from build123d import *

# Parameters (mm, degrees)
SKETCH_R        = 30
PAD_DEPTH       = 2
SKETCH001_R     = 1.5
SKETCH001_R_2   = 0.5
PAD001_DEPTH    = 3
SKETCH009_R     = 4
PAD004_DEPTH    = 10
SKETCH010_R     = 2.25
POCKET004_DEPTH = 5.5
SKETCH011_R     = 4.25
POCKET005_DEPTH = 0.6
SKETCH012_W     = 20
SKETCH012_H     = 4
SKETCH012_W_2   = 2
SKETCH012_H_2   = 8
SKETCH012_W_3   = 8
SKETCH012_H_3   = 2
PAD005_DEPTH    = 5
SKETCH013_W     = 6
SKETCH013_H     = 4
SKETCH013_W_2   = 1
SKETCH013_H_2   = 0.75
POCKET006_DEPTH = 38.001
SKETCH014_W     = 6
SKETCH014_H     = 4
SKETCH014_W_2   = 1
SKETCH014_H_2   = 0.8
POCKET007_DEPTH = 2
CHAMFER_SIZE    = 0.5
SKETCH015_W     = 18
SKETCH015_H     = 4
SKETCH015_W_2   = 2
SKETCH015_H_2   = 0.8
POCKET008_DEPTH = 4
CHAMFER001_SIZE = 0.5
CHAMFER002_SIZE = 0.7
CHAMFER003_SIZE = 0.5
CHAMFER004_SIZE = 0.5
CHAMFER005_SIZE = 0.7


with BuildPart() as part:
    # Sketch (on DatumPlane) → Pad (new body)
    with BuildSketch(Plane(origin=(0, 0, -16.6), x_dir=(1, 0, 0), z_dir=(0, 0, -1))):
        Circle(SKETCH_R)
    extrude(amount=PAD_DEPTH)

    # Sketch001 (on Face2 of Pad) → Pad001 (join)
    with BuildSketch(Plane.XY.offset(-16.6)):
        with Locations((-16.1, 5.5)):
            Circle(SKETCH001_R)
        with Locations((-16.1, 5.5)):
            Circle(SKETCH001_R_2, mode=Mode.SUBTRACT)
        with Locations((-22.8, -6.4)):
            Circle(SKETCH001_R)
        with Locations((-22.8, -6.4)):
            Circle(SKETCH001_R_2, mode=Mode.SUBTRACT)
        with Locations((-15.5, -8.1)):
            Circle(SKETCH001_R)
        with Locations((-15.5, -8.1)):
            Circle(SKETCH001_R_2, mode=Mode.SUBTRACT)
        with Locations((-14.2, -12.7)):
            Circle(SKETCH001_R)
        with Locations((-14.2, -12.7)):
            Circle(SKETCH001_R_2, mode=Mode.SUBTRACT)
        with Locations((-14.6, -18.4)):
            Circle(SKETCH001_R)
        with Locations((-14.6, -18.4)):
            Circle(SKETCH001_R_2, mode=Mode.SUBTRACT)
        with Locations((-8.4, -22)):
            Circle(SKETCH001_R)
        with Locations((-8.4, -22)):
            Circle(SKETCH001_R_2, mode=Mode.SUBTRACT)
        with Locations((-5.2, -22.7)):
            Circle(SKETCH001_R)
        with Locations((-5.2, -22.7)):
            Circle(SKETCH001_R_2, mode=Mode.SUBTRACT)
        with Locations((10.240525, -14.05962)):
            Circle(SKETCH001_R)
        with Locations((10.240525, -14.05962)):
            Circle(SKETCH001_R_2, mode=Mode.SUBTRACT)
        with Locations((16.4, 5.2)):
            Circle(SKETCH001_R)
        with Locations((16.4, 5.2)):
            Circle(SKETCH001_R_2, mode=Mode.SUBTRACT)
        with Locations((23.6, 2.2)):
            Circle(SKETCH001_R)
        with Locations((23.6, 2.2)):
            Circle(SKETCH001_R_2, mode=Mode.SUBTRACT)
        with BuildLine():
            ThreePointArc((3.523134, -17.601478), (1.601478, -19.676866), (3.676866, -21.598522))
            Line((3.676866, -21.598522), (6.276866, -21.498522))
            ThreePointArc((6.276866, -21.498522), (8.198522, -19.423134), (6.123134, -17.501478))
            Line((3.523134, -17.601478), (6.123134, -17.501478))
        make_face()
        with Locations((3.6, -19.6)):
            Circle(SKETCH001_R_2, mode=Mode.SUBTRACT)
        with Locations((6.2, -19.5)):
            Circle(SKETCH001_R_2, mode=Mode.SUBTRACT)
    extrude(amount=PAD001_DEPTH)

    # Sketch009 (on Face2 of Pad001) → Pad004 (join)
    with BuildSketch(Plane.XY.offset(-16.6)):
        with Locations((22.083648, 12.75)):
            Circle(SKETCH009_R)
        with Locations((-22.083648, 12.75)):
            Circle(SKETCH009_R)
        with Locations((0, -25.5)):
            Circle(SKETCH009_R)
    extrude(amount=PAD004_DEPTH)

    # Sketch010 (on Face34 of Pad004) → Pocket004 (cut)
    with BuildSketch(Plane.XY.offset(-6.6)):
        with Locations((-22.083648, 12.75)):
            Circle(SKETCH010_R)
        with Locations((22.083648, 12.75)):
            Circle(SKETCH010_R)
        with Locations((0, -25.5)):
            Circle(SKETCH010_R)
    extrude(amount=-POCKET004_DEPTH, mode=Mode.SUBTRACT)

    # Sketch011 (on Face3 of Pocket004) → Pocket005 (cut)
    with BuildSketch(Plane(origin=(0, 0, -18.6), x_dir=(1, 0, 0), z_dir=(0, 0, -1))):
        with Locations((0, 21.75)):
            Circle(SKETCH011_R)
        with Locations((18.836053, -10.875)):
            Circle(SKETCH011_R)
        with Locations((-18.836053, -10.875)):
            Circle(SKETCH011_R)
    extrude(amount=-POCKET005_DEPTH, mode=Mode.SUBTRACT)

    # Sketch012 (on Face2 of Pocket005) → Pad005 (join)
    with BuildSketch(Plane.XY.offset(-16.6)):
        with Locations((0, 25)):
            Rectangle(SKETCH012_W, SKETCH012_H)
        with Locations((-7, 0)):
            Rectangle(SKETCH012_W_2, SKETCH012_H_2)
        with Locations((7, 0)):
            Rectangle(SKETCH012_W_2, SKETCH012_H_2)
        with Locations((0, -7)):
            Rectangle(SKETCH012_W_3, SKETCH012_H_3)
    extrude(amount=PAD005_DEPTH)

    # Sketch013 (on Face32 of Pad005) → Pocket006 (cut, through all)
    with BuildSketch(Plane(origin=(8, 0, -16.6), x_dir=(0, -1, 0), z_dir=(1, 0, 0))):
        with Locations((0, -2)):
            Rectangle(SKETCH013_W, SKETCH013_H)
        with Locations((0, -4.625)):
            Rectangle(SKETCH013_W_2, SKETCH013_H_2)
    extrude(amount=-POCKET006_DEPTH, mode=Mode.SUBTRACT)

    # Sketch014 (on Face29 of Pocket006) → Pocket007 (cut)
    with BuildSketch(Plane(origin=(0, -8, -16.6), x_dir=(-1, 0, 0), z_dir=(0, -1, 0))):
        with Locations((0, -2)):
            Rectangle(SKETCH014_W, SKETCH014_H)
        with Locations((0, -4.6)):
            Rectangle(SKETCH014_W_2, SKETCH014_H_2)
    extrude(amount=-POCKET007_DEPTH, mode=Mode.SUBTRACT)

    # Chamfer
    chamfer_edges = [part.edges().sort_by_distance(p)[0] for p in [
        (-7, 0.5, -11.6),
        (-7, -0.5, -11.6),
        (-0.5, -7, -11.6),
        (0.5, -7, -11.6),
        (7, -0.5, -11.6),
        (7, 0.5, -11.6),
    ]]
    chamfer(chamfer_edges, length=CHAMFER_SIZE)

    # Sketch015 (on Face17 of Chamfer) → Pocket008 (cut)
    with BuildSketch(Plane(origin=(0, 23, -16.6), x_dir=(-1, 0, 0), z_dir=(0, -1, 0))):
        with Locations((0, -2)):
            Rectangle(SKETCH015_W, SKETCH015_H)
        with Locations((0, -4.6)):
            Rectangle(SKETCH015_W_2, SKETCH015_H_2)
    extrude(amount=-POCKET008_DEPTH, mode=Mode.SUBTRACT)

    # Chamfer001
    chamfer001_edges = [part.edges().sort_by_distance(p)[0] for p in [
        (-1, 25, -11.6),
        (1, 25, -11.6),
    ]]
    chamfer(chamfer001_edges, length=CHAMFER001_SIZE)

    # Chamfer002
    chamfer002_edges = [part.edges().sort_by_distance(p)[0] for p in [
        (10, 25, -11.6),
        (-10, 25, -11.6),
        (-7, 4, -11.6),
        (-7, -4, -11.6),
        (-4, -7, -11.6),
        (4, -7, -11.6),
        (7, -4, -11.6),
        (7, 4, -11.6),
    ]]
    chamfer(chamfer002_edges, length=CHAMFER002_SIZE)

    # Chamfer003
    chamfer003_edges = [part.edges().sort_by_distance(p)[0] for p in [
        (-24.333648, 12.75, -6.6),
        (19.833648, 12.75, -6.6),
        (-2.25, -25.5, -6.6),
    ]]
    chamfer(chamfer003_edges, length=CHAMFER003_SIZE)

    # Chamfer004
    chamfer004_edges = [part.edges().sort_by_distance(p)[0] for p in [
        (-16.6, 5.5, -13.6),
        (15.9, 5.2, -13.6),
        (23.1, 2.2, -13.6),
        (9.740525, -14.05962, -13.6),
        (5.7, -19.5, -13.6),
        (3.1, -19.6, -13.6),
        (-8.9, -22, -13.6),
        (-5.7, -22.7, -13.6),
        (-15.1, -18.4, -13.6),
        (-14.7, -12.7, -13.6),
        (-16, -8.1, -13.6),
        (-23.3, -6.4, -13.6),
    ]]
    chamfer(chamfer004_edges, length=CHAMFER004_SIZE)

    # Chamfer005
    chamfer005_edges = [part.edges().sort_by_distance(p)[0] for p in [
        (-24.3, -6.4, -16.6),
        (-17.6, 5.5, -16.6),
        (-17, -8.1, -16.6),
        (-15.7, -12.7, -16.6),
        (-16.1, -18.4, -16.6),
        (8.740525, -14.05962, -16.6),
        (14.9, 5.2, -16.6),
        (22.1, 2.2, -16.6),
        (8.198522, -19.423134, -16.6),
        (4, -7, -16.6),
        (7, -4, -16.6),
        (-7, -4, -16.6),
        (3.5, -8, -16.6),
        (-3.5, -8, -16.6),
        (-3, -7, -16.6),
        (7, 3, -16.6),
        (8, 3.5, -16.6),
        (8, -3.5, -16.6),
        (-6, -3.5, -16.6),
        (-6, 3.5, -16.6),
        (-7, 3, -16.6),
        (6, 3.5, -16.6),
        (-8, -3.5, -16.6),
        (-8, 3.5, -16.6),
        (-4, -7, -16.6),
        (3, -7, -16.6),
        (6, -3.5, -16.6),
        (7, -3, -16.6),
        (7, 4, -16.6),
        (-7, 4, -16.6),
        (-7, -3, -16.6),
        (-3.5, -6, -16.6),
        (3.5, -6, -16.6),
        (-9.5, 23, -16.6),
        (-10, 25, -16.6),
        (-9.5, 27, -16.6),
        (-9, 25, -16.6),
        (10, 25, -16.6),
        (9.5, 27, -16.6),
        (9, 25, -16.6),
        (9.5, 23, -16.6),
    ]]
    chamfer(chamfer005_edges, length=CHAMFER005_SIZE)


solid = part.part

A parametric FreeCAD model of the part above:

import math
import FreeCAD as App
import Part
import Sketcher


def edges_at(feature, points):
    """Names of the edges that pass closest to the given points."""
    edges = feature.Shape.Edges
    near = lambda p: min(range(len(edges)), key=lambda i: edges[i].distToShape(Part.Vertex(*p))[0])
    return sorted({f"Edge{near(p) + 1}" for p in points})


def add_polygon(sketch, points):
    """Adds a closed chain of lines whose ends are joined by coincident constraints."""
    first, n = sketch.GeometryCount, len(points)
    for a, b in zip(points, points[1:] + points[:1]):
        sketch.addGeometry(Part.LineSegment(App.Vector(*a, 0), App.Vector(*b, 0)), False)
    for i in range(n):
        sketch.addConstraint(Sketcher.Constraint("Coincident", first + i, 2, first + (i + 1) % n, 1))

doc = App.newDocument("Part")
body = doc.addObject("PartDesign::Body", "Body")

sketch1 = doc.addObject("Sketcher::SketchObject", "Sketch")
body.addObject(sketch1)
sketch1.AttachmentSupport = (doc.XY_Plane, [""])
sketch1.MapMode = "FlatFace"
sketch1.AttachmentOffset = App.Placement(App.Vector(0, 0, -16.6), App.Rotation())
sketch1.addGeometry(Part.Circle(App.Vector(0, 0, 0), App.Vector(0, 0, 1), 30), False)
sketch1.addConstraint([
    Sketcher.Constraint("Coincident", 0, 3, -1, 1),
    Sketcher.Constraint("Diameter", 0, 60.0),
])
pad1 = doc.addObject("PartDesign::Pad", "Pad")
body.addObject(pad1)
pad1.Profile = sketch1
pad1.Length = 2
pad1.Reversed = True

sketch2 = doc.addObject("Sketcher::SketchObject", "Sketch001")
body.addObject(sketch2)
sketch2.AttachmentSupport = (doc.XY_Plane, [""])
sketch2.MapMode = "FlatFace"
sketch2.AttachmentOffset = App.Placement(App.Vector(0, 0, -16.6), App.Rotation())
sketch2.addGeometry([
    Part.Circle(App.Vector(-16.1, 5.5, 0), App.Vector(0, 0, 1), 1.5),
    Part.Circle(App.Vector(-16.1, 5.5, 0), App.Vector(0, 0, 1), 0.5),
    Part.Circle(App.Vector(-22.8, -6.4, 0), App.Vector(0, 0, 1), 1.5),
    Part.Circle(App.Vector(-22.8, -6.4, 0), App.Vector(0, 0, 1), 0.5),
    Part.Circle(App.Vector(-15.5, -8.1, 0), App.Vector(0, 0, 1), 1.5),
    Part.Circle(App.Vector(-15.5, -8.1, 0), App.Vector(0, 0, 1), 0.5),
    Part.Circle(App.Vector(-14.2, -12.7, 0), App.Vector(0, 0, 1), 1.5),
    Part.Circle(App.Vector(-14.2, -12.7, 0), App.Vector(0, 0, 1), 0.5),
    Part.Circle(App.Vector(-14.6, -18.4, 0), App.Vector(0, 0, 1), 1.5),
    Part.Circle(App.Vector(-14.6, -18.4, 0), App.Vector(0, 0, 1), 0.5),
    Part.Circle(App.Vector(-8.4, -22, 0), App.Vector(0, 0, 1), 1.5),
    Part.Circle(App.Vector(-8.4, -22, 0), App.Vector(0, 0, 1), 0.5),
    Part.Circle(App.Vector(-5.2, -22.7, 0), App.Vector(0, 0, 1), 1.5),
    Part.Circle(App.Vector(-5.2, -22.7, 0), App.Vector(0, 0, 1), 0.5),
    Part.Circle(App.Vector(10.2, -14.1, 0), App.Vector(0, 0, 1), 1.5),
    Part.Circle(App.Vector(10.2, -14.1, 0), App.Vector(0, 0, 1), 0.5),
    Part.Circle(App.Vector(16.4, 5.2, 0), App.Vector(0, 0, 1), 1.5),
    Part.Circle(App.Vector(16.4, 5.2, 0), App.Vector(0, 0, 1), 0.5),
    Part.Circle(App.Vector(23.6, 2.2, 0), App.Vector(0, 0, 1), 1.5),
    Part.Circle(App.Vector(23.6, 2.2, 0), App.Vector(0, 0, 1), 0.5),
    Part.ArcOfCircle(Part.Circle(App.Vector(3.6, -19.6, 0), App.Vector(0, 0, 1), 2), math.radians(92), math.radians(272)),
    Part.LineSegment(App.Vector(3.7, -21.6, 0), App.Vector(6.3, -21.5, 0)),
    Part.ArcOfCircle(Part.Circle(App.Vector(6.2, -19.5, 0), App.Vector(0, 0, 1), 2), math.radians(-88), math.radians(92)),
    Part.LineSegment(App.Vector(6.1, -17.5, 0), App.Vector(3.5, -17.6, 0)),
    Part.Circle(App.Vector(3.6, -19.6, 0), App.Vector(0, 0, 1), 0.5),
    Part.Circle(App.Vector(6.2, -19.5, 0), App.Vector(0, 0, 1), 0.5),
], False)
sketch2.addConstraint([
    Sketcher.Constraint("Tangent", 20, 2, 21, 1),
    Sketcher.Constraint("Tangent", 21, 2, 22, 1),
    Sketcher.Constraint("Tangent", 22, 2, 23, 1),
    Sketcher.Constraint("Tangent", 23, 2, 20, 1),
    Sketcher.Constraint("Coincident", 1, 3, 0, 3),
    Sketcher.Constraint("Coincident", 3, 3, 2, 3),
    Sketcher.Constraint("Coincident", 5, 3, 4, 3),
    Sketcher.Constraint("Coincident", 7, 3, 6, 3),
    Sketcher.Constraint("Coincident", 9, 3, 8, 3),
    Sketcher.Constraint("Coincident", 11, 3, 10, 3),
    Sketcher.Constraint("Coincident", 13, 3, 12, 3),
    Sketcher.Constraint("Coincident", 15, 3, 14, 3),
    Sketcher.Constraint("Coincident", 17, 3, 16, 3),
    Sketcher.Constraint("Coincident", 19, 3, 18, 3),
    Sketcher.Constraint("Coincident", 24, 3, 20, 3),
    Sketcher.Constraint("Coincident", 25, 3, 22, 3),
    Sketcher.Constraint("Equal", 0, 2),
    Sketcher.Constraint("Equal", 1, 3),
    Sketcher.Constraint("Equal", 2, 4),
    Sketcher.Constraint("Equal", 3, 5),
    Sketcher.Constraint("Equal", 4, 6),
    Sketcher.Constraint("Equal", 5, 7),
    Sketcher.Constraint("Equal", 6, 8),
    Sketcher.Constraint("Equal", 7, 9),
    Sketcher.Constraint("Equal", 8, 10),
    Sketcher.Constraint("Equal", 9, 11),
    Sketcher.Constraint("Equal", 10, 12),
    Sketcher.Constraint("Equal", 11, 13),
    Sketcher.Constraint("Equal", 12, 14),
    Sketcher.Constraint("Equal", 13, 15),
    Sketcher.Constraint("Equal", 14, 16),
    Sketcher.Constraint("Equal", 15, 17),
    Sketcher.Constraint("Equal", 16, 18),
    Sketcher.Constraint("Equal", 17, 19),
    Sketcher.Constraint("Equal", 20, 22),
    Sketcher.Constraint("Equal", 19, 24),
    Sketcher.Constraint("Equal", 24, 25),
    Sketcher.Constraint("Diameter", 0, 3.0),
    Sketcher.Constraint("Diameter", 1, 1.0),
    Sketcher.Constraint("Radius", 20, 2.0),
    Sketcher.Constraint("DistanceY", 10, 3, -1, 1, 22.0),
    Sketcher.Constraint("DistanceY", 8, 3, 2, 3, 12.0),
    Sketcher.Constraint("DistanceX", 6, 3, 12, 3, 9.0),
    Sketcher.Constraint("DistanceY", 12, 3, 6, 3, 10.0),
    Sketcher.Constraint("DistanceY", 18, 3, 16, 3, 3.0),
    Sketcher.Constraint("DistanceX", 10, 3, 20, 3, 12.0),
    Sketcher.Constraint("DistanceX", 0, 3, -1, 1, 16.1),
    Sketcher.Constraint("DistanceY", -1, 1, 0, 3, 5.5),
    Sketcher.Constraint("DistanceX", 2, 3, -1, 1, 22.8),
    Sketcher.Constraint("DistanceY", 2, 3, -1, 1, 6.4),
    Sketcher.Constraint("DistanceX", 4, 3, -1, 1, 15.5),
    Sketcher.Constraint("DistanceY", 4, 3, -1, 1, 8.1),
    Sketcher.Constraint("DistanceX", 6, 3, -1, 1, 14.2),
    Sketcher.Constraint("DistanceY", 6, 3, -1, 1, 12.7),
    Sketcher.Constraint("DistanceX", 8, 3, -1, 1, 14.6),
    Sketcher.Constraint("DistanceX", 10, 3, -1, 1, 8.4),
    Sketcher.Constraint("DistanceX", -1, 1, 16, 3, 16.4),
    Sketcher.Constraint("DistanceY", -1, 1, 16, 3, 5.2),
    Sketcher.Constraint("DistanceX", -1, 1, 18, 3, 23.6),
    Sketcher.Constraint("DistanceY", 20, 3, -1, 1, 19.6),
    Sketcher.Constraint("DistanceX", -1, 1, 22, 3, 6.2),
    Sketcher.Constraint("DistanceY", 22, 3, -1, 1, 19.5),
    Sketcher.Constraint("DistanceY", 14, 3, -1, 1, 14.05962),
    Sketcher.Constraint("DistanceX", -1, 1, 14, 3, 10.240525),
])
pad2 = doc.addObject("PartDesign::Pad", "Pad001")
body.addObject(pad2)
pad2.Profile = sketch2
pad2.Length = 3

sketch3 = doc.addObject("Sketcher::SketchObject", "Sketch002")
body.addObject(sketch3)
sketch3.AttachmentSupport = (doc.XY_Plane, [""])
sketch3.MapMode = "FlatFace"
sketch3.AttachmentOffset = App.Placement(App.Vector(0, 0, -16.6), App.Rotation())
sketch3.addGeometry([
    Part.Circle(App.Vector(22.1, 12.8, 0), App.Vector(0, 0, 1), 4),
    Part.Circle(App.Vector(-22.1, 12.8, 0), App.Vector(0, 0, 1), 4),
    Part.Circle(App.Vector(0, -25.5, 0), App.Vector(0, 0, 1), 4),
], False)
sketch3.addConstraint([
    Sketcher.Constraint("Equal", 0, 1),
    Sketcher.Constraint("Equal", 1, 2),
    Sketcher.Constraint("Symmetric", 0, 3, 1, 3, -2),
    Sketcher.Constraint("PointOnObject", 2, 3, -2),
    Sketcher.Constraint("Diameter", 0, 8.0),
    Sketcher.Constraint("DistanceY", 2, 3, -1, 1, 25.5),
    Sketcher.Constraint("DistanceY", -1, 1, 0, 3, 12.75),
    Sketcher.Constraint("DistanceX", -1, 1, 0, 3, 22.083648),
])
pad3 = doc.addObject("PartDesign::Pad", "Pad002")
body.addObject(pad3)
pad3.Profile = sketch3
pad3.Length = 10

sketch4 = doc.addObject("Sketcher::SketchObject", "Sketch003")
body.addObject(sketch4)
sketch4.AttachmentSupport = (doc.XY_Plane, [""])
sketch4.MapMode = "FlatFace"
sketch4.AttachmentOffset = App.Placement(App.Vector(0, 0, -6.6), App.Rotation())
sketch4.addGeometry([
    Part.Circle(App.Vector(-22.1, 12.8, 0), App.Vector(0, 0, 1), 2.2),
    Part.Circle(App.Vector(22.1, 12.8, 0), App.Vector(0, 0, 1), 2.2),
    Part.Circle(App.Vector(0, -25.5, 0), App.Vector(0, 0, 1), 2.2),
], False)
sketch4.addConstraint([
    Sketcher.Constraint("Equal", 0, 1),
    Sketcher.Constraint("Equal", 1, 2),
    Sketcher.Constraint("Symmetric", 0, 3, 1, 3, -2),
    Sketcher.Constraint("PointOnObject", 2, 3, -2),
    Sketcher.Constraint("Diameter", 0, 4.5),
    Sketcher.Constraint("DistanceY", 2, 3, -1, 1, 25.5),
    Sketcher.Constraint("DistanceY", -1, 1, 0, 3, 12.75),
    Sketcher.Constraint("DistanceX", 0, 3, -1, 1, 22.083648),
])
pocket1 = doc.addObject("PartDesign::Pocket", "Pocket")
body.addObject(pocket1)
pocket1.Profile = sketch4
pocket1.Length = 5.5

sketch5 = doc.addObject("Sketcher::SketchObject", "Sketch004")
body.addObject(sketch5)
sketch5.AttachmentSupport = (doc.XY_Plane, [""])
sketch5.MapMode = "FlatFace"
sketch5.AttachmentOffset = App.Placement(App.Vector(0, 0, -18.6), App.Rotation())
sketch5.addGeometry([
    Part.Circle(App.Vector(0, -21.8, 0), App.Vector(0, 0, 1), 4.2),
    Part.Circle(App.Vector(18.8, 10.9, 0), App.Vector(0, 0, 1), 4.2),
    Part.Circle(App.Vector(-18.8, 10.9, 0), App.Vector(0, 0, 1), 4.2),
], False)
sketch5.addConstraint([
    Sketcher.Constraint("Equal", 0, 1),
    Sketcher.Constraint("Equal", 1, 2),
    Sketcher.Constraint("Symmetric", 1, 3, 2, 3, -2),
    Sketcher.Constraint("PointOnObject", 0, 3, -2),
    Sketcher.Constraint("Diameter", 0, 8.5),
    Sketcher.Constraint("DistanceY", 0, 3, -1, 1, 21.75),
    Sketcher.Constraint("DistanceY", -1, 1, 1, 3, 10.875),
    Sketcher.Constraint("DistanceX", -1, 1, 1, 3, 18.836053),
])
pocket2 = doc.addObject("PartDesign::Pocket", "Pocket001")
body.addObject(pocket2)
pocket2.Profile = sketch5
pocket2.Length = 0.6
pocket2.Reversed = True

sketch6 = doc.addObject("Sketcher::SketchObject", "Sketch005")
body.addObject(sketch6)
sketch6.AttachmentSupport = (doc.XY_Plane, [""])
sketch6.MapMode = "FlatFace"
sketch6.AttachmentOffset = App.Placement(App.Vector(0, 0, -16.6), App.Rotation())
add_polygon(sketch6, [(-10, 27), (-10, 23), (10, 23), (10, 27)])
add_polygon(sketch6, [(-8, 4), (-8, -4), (-6, -4), (-6, 4)])
add_polygon(sketch6, [(6, 4), (6, -4), (8, -4), (8, 4)])
add_polygon(sketch6, [(-4, -6), (-4, -8), (4, -8), (4, -6)])
sketch6.addConstraint([
    Sketcher.Constraint("Vertical", 0),
    Sketcher.Constraint("Horizontal", 1),
    Sketcher.Constraint("Vertical", 2),
    Sketcher.Constraint("Horizontal", 3),
    Sketcher.Constraint("Vertical", 4),
    Sketcher.Constraint("Horizontal", 5),
    Sketcher.Constraint("Vertical", 6),
    Sketcher.Constraint("Horizontal", 7),
    Sketcher.Constraint("Vertical", 8),
    Sketcher.Constraint("Horizontal", 9),
    Sketcher.Constraint("Vertical", 10),
    Sketcher.Constraint("Horizontal", 11),
    Sketcher.Constraint("Vertical", 12),
    Sketcher.Constraint("Horizontal", 13),
    Sketcher.Constraint("Vertical", 14),
    Sketcher.Constraint("Horizontal", 15),
    Sketcher.Constraint("Symmetric", 6, 2, 8, 2, -1, 1),
    Sketcher.Constraint("Symmetric", 4, 2, 10, 2, -1, 1),
    Sketcher.Constraint("Horizontal", 5, 2, 8, 2),
    Sketcher.Constraint("Equal", 15, 4),
    Sketcher.Constraint("Equal", 11, 12),
    Sketcher.Constraint("DistanceX", 1, 1, 1, 2, 20.0),
    Sketcher.Constraint("DistanceX", 5, 1, 5, 2, 2.0),
    Sketcher.Constraint("DistanceX", 13, 1, 13, 2, 8.0),
    Sketcher.Constraint("DistanceY", 0, 2, 0, 1, 4.0),
    Sketcher.Constraint("DistanceX", 0, 2, -1, 1, 10.0),
    Sketcher.Constraint("DistanceY", -1, 1, 0, 2, 23.0),
    Sketcher.Constraint("DistanceX", 4, 2, -1, 1, 8.0),
    Sketcher.Constraint("DistanceX", 12, 2, -1, 1, 4.0),
    Sketcher.Constraint("DistanceY", 12, 2, -1, 1, 8.0),
])
pad4 = doc.addObject("PartDesign::Pad", "Pad003")
body.addObject(pad4)
pad4.Profile = sketch6
pad4.Length = 5

sketch7 = doc.addObject("Sketcher::SketchObject", "Sketch006")
body.addObject(sketch7)
sketch7.AttachmentSupport = (doc.YZ_Plane, [""])
sketch7.MapMode = "FlatFace"
sketch7.AttachmentOffset = App.Placement(App.Vector(0, 0, 8), App.Rotation())
add_polygon(sketch7, [(3, -16.6), (3, -12.6), (-3, -12.6), (-3, -16.6)])
add_polygon(sketch7, [(0.5, -12.3), (0.5, -11.6), (-0.5, -11.6), (-0.5, -12.3)])
sketch7.addConstraint([
    Sketcher.Constraint("Vertical", 0),
    Sketcher.Constraint("Horizontal", 1),
    Sketcher.Constraint("Vertical", 2),
    Sketcher.Constraint("Horizontal", 3),
    Sketcher.Constraint("Vertical", 4),
    Sketcher.Constraint("Horizontal", 5),
    Sketcher.Constraint("Vertical", 6),
    Sketcher.Constraint("Horizontal", 7),
    Sketcher.Constraint("DistanceX", 1, 2, 1, 1, 6.0),
    Sketcher.Constraint("DistanceX", 5, 2, 5, 1, 1.0),
    Sketcher.Constraint("DistanceY", 0, 1, 0, 2, 4.0),
    Sketcher.Constraint("DistanceX", -1, 1, 0, 2, 3.0),
    Sketcher.Constraint("DistanceY", 0, 2, 4, 2, 1.0),
    Sketcher.Constraint("DistanceY", 4, 1, 4, 2, 0.75),
    Sketcher.Constraint("DistanceY", 0, 2, -1, 1, 12.6),
    Sketcher.Constraint("DistanceX", -1, 1, 4, 2, 0.5),
])
pocket3 = doc.addObject("PartDesign::Pocket", "Pocket002")
body.addObject(pocket3)
pocket3.Profile = sketch7
pocket3.Type = "ThroughAll"

sketch8 = doc.addObject("Sketcher::SketchObject", "Sketch007")
body.addObject(sketch8)
sketch8.AttachmentSupport = (doc.XZ_Plane, [""])
sketch8.MapMode = "FlatFace"
sketch8.AttachmentOffset = App.Placement(App.Vector(0, 0, 8), App.Rotation())
add_polygon(sketch8, [(3, -16.6), (3, -12.6), (-3, -12.6), (-3, -16.6)])
add_polygon(sketch8, [(0.5, -12.4), (0.5, -11.6), (-0.5, -11.6), (-0.5, -12.4)])
sketch8.addConstraint([
    Sketcher.Constraint("Vertical", 0),
    Sketcher.Constraint("Horizontal", 1),
    Sketcher.Constraint("Vertical", 2),
    Sketcher.Constraint("Horizontal", 3),
    Sketcher.Constraint("Vertical", 4),
    Sketcher.Constraint("Horizontal", 5),
    Sketcher.Constraint("Vertical", 6),
    Sketcher.Constraint("Horizontal", 7),
    Sketcher.Constraint("DistanceX", 1, 2, 1, 1, 6.0),
    Sketcher.Constraint("DistanceX", 5, 2, 5, 1, 1.0),
    Sketcher.Constraint("DistanceY", 0, 1, 0, 2, 4.0),
    Sketcher.Constraint("DistanceY", 4, 1, 4, 2, 0.8),
    Sketcher.Constraint("DistanceX", -1, 1, 0, 2, 3.0),
    Sketcher.Constraint("DistanceY", 0, 2, 4, 2, 1.0),
    Sketcher.Constraint("DistanceY", 0, 2, -1, 1, 12.6),
    Sketcher.Constraint("DistanceX", -1, 1, 4, 2, 0.5),
])
pocket4 = doc.addObject("PartDesign::Pocket", "Pocket003")
body.addObject(pocket4)
pocket4.Profile = sketch8
pocket4.Length = 2
doc.recompute()

chamfer = doc.addObject("PartDesign::Chamfer", "Chamfer")
body.addObject(chamfer)
chamfer.Base = (pocket4, edges_at(pocket4, [
    (-7, 0.5, -11.6),
    (-7, -0.5, -11.6),
    (-0.5, -7, -11.6),
    (0.5, -7, -11.6),
    (7, -0.5, -11.6),
    (7, 0.5, -11.6),
]))
chamfer.Size = 0.5

sketch9 = doc.addObject("Sketcher::SketchObject", "Sketch008")
body.addObject(sketch9)
sketch9.AttachmentSupport = (doc.XZ_Plane, [""])
sketch9.MapMode = "FlatFace"
sketch9.AttachmentOffset = App.Placement(App.Vector(0, 0, -23), App.Rotation())
add_polygon(sketch9, [(9, -16.6), (9, -12.6), (-9, -12.6), (-9, -16.6)])
add_polygon(sketch9, [(1, -12.4), (1, -11.6), (-1, -11.6), (-1, -12.4)])
sketch9.addConstraint([
    Sketcher.Constraint("Vertical", 0),
    Sketcher.Constraint("Horizontal", 1),
    Sketcher.Constraint("Vertical", 2),
    Sketcher.Constraint("Horizontal", 3),
    Sketcher.Constraint("Vertical", 4),
    Sketcher.Constraint("Horizontal", 5),
    Sketcher.Constraint("Vertical", 6),
    Sketcher.Constraint("Horizontal", 7),
    Sketcher.Constraint("DistanceX", 1, 2, 1, 1, 18.0),
    Sketcher.Constraint("DistanceX", 5, 2, 5, 1, 2.0),
    Sketcher.Constraint("DistanceY", 0, 1, 0, 2, 4.0),
    Sketcher.Constraint("DistanceY", 4, 1, 4, 2, 0.8),
    Sketcher.Constraint("DistanceX", -1, 1, 0, 2, 9.0),
    Sketcher.Constraint("DistanceX", -1, 1, 4, 2, 1.0),
    Sketcher.Constraint("DistanceY", 0, 2, 4, 2, 1.0),
    Sketcher.Constraint("DistanceY", 0, 2, -1, 1, 12.6),
])
pocket5 = doc.addObject("PartDesign::Pocket", "Pocket004")
body.addObject(pocket5)
pocket5.Profile = sketch9
pocket5.Length = 4
doc.recompute()

chamfer2 = doc.addObject("PartDesign::Chamfer", "Chamfer001")
body.addObject(chamfer2)
chamfer2.Base = (pocket5, edges_at(pocket5, [(-1, 25, -11.6), (1, 25, -11.6)]))
chamfer2.Size = 0.5
doc.recompute()

chamfer3 = doc.addObject("PartDesign::Chamfer", "Chamfer002")
body.addObject(chamfer3)
chamfer3.Base = (chamfer2, edges_at(chamfer2, [
    (10, 25, -11.6),
    (-10, 25, -11.6),
    (-7, 4, -11.6),
    (-7, -4, -11.6),
    (-4, -7, -11.6),
    (4, -7, -11.6),
    (7, -4, -11.6),
    (7, 4, -11.6),
]))
chamfer3.Size = 0.7
doc.recompute()

chamfer4 = doc.addObject("PartDesign::Chamfer", "Chamfer003")
body.addObject(chamfer4)
chamfer4.Base = (chamfer3, edges_at(chamfer3, [(-24.334, 12.75, -6.6), (19.834, 12.75, -6.6), (-2.25, -25.5, -6.6)]))
chamfer4.Size = 0.5
doc.recompute()

chamfer5 = doc.addObject("PartDesign::Chamfer", "Chamfer004")
body.addObject(chamfer5)
chamfer5.Base = (chamfer4, edges_at(chamfer4, [
    (-16.6, 5.5, -13.6),
    (15.9, 5.2, -13.6),
    (23.1, 2.2, -13.6),
    (9.741, -14.06, -13.6),
    (5.7, -19.5, -13.6),
    (3.1, -19.6, -13.6),
    (-8.9, -22, -13.6),
    (-5.7, -22.7, -13.6),
    (-15.1, -18.4, -13.6),
    (-14.7, -12.7, -13.6),
    (-16, -8.1, -13.6),
    (-23.3, -6.4, -13.6),
]))
chamfer5.Size = 0.5
doc.recompute()

chamfer6 = doc.addObject("PartDesign::Chamfer", "Chamfer005")
body.addObject(chamfer6)
chamfer6.Base = (chamfer5, edges_at(chamfer5, [
    (-24.3, -6.4, -16.6),
    (-17.6, 5.5, -16.6),
    (-17, -8.1, -16.6),
    (-15.7, -12.7, -16.6),
    (-16.1, -18.4, -16.6),
    (8.741, -14.06, -16.6),
    (14.9, 5.2, -16.6),
    (22.1, 2.2, -16.6),
    (8.199, -19.423, -16.6),
    (4, -7, -16.6),
    (7, -4, -16.6),
    (-7, -4, -16.6),
    (3.5, -8, -16.6),
    (-3.5, -8, -16.6),
    (-3, -7, -16.6),
    (7, 3, -16.6),
    (8, 3.5, -16.6),
    (8, -3.5, -16.6),
    (-6, -3.5, -16.6),
    (-6, 3.5, -16.6),
    (-7, 3, -16.6),
    (6, 3.5, -16.6),
    (-8, -3.5, -16.6),
    (-8, 3.5, -16.6),
    (-4, -7, -16.6),
    (3, -7, -16.6),
    (6, -3.5, -16.6),
    (7, -3, -16.6),
    (7, 4, -16.6),
    (-7, 4, -16.6),
    (-7, -3, -16.6),
    (-3.5, -6, -16.6),
    (3.5, -6, -16.6),
    (-9.5, 23, -16.6),
    (-10, 25, -16.6),
    (-9.5, 27, -16.6),
    (-9, 25, -16.6),
    (10, 25, -16.6),
    (9.5, 27, -16.6),
    (9, 25, -16.6),
    (9.5, 23, -16.6),
]))
chamfer6.Size = 0.7

doc.recompute()
